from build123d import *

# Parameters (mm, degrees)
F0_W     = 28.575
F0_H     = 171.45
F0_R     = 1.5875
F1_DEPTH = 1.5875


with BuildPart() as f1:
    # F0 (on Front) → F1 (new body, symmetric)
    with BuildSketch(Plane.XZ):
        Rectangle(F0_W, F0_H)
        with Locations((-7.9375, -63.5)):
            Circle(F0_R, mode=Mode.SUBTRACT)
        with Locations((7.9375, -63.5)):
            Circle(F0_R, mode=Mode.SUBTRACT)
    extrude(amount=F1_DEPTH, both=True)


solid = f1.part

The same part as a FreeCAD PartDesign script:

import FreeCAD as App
import Part
import Sketcher
Q = App.Units.Quantity


def add_polygon(sketch, points):
    """Adds a closed chain of lines whose ends are joined by coincident constraints."""
    first, n = sketch.GeometryCount, len(points)
    for a, b in zip(points, points[1:] + points[:1]):
        sketch.addGeometry(Part.LineSegment(App.Vector(*a, 0), App.Vector(*b, 0)), False)
    for i in range(n):
        sketch.addConstraint(Sketcher.Constraint("Coincident", first + i, 2, first + (i + 1) % n, 1))

doc = App.newDocument("Part")
body = doc.addObject("PartDesign::Body", "Body")

sketch1 = doc.addObject("Sketcher::SketchObject", "Sketch")
body.addObject(sketch1)
sketch1.AttachmentSupport = (doc.XZ_Plane, [""])
sketch1.MapMode = "FlatFace"
add_polygon(sketch1, [(-14.3, 85.7), (-14.3, -85.7), (14.3, -85.7), (14.3, 85.7)])
sketch1.addGeometry(Part.Circle(App.Vector(-7.9, -63.5, 0), App.Vector(0, 0, 1), 1.6), False)
sketch1.addGeometry(Part.Circle(App.Vector(7.9, -63.5, 0), App.Vector(0, 0, 1), 1.6), False)
sketch1.addConstraint([
    Sketcher.Constraint("Vertical", 0),
    Sketcher.Constraint("Horizontal", 1),
    Sketcher.Constraint("Vertical", 2),
    Sketcher.Constraint("Horizontal", 3),
    Sketcher.Constraint("Equal", 4, 5),
    Sketcher.Constraint("Symmetric", 0, 2, 2, 2, -1, 1),
    Sketcher.Constraint("Symmetric", 4, 3, 5, 3, -2),
    Sketcher.Constraint("Diameter", 4, Q("0.125 in")),
    Sketcher.Constraint("DistanceY", 0, 2, 0, 1, Q("6.75 in")),
    Sketcher.Constraint("DistanceY", 4, 3, -1, 1, Q("2.5 in")),
    Sketcher.Constraint("DistanceX", 1, 1, 1, 2, Q("1.125 in")),
    Sketcher.Constraint("DistanceX", 0, 2, 4, 3, Q("0.25 in")),
])
pad1 = doc.addObject("PartDesign::Pad", "Pad")
body.addObject(pad1)
pad1.Profile = sketch1
pad1.Length = Q("0.125 in")
pad1.Midplane = True

doc.recompute()
